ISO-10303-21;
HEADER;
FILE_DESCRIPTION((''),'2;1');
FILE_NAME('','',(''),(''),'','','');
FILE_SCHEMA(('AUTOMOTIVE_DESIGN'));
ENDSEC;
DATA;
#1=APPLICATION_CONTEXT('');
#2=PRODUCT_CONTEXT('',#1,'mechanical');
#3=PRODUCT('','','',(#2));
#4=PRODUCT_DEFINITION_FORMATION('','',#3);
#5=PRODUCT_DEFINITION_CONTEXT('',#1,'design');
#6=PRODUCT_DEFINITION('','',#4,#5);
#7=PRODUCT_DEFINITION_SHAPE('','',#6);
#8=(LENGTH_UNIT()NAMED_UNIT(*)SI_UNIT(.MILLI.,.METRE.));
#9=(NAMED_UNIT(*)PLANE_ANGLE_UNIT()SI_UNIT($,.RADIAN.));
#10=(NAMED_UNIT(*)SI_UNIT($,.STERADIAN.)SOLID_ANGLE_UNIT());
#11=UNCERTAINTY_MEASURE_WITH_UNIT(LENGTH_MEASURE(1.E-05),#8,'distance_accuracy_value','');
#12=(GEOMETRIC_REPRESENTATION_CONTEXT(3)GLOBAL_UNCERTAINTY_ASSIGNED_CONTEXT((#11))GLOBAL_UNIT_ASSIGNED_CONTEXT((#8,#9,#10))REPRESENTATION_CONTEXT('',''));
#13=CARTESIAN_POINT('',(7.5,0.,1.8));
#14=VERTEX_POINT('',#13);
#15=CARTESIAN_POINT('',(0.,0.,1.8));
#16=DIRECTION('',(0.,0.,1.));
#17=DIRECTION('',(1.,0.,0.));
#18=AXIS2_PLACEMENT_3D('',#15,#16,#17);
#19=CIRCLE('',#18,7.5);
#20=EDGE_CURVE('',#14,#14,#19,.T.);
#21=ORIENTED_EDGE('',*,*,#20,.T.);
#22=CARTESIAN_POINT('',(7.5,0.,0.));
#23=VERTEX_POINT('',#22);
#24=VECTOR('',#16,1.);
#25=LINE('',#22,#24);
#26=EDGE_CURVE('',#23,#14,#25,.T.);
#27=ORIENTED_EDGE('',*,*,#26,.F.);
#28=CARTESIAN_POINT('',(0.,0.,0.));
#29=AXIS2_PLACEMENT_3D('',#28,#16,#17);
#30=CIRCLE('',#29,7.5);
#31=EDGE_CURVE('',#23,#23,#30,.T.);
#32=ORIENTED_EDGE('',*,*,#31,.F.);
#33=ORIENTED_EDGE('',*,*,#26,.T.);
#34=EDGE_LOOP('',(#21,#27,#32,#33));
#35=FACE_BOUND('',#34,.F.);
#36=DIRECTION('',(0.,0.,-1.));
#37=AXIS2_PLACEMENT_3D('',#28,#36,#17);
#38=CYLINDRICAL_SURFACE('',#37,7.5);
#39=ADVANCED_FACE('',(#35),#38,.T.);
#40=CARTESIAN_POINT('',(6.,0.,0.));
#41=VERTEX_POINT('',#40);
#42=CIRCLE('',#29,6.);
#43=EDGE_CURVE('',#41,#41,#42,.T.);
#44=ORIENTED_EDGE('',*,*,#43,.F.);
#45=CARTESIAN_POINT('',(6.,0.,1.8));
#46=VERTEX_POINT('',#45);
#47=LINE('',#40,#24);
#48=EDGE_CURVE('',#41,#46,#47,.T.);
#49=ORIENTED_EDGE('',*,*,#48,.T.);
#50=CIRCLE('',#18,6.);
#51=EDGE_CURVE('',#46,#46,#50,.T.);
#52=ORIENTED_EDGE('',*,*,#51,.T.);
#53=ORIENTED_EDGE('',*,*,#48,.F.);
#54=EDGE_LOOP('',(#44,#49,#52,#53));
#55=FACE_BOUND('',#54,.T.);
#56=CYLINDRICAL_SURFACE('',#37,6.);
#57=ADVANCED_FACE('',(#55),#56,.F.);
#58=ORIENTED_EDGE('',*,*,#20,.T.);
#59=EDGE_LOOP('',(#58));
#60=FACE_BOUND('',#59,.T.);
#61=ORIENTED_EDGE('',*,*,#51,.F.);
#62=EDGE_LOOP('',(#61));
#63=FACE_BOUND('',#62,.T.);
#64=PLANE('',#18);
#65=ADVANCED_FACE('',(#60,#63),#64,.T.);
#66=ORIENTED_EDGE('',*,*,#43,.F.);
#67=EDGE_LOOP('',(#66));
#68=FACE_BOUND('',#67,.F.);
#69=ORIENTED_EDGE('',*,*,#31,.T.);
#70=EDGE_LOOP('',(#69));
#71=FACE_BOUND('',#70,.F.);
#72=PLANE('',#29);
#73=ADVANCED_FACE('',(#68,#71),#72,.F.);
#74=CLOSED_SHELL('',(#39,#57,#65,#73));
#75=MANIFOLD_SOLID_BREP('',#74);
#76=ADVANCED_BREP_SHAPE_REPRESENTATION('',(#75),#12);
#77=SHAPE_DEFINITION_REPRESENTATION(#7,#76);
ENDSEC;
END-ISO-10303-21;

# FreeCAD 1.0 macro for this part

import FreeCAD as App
import Part
import Sketcher

V = App.Vector

doc = App.newDocument("Part")
body = doc.addObject("PartDesign::Body", "Body")

sketch1 = doc.addObject("Sketcher::SketchObject", "Sketch")
body.addObject(sketch1)
sketch1.AttachmentSupport = (doc.XY_Plane, [""])
sketch1.MapMode = "FlatFace"
sketch1.addGeometry([
    Part.Circle(V(0, 0, 0), V(0, 0, 1), 8),
    Part.Circle(V(0, 0, 0), V(0, 0, 1), 6),
], False)
sketch1.addConstraint([
    Sketcher.Constraint("Coincident", 0, 3, -1, 1),
    Sketcher.Constraint("Coincident", 1, 3, -1, 1),
    Sketcher.Constraint("Diameter", 0, 15.0),
    Sketcher.Constraint("Diameter", 1, 12.0),
])
pad1 = doc.addObject("PartDesign::Pad", "Pad")
body.addObject(pad1)
pad1.Profile = sketch1
pad1.Length = 1.8

doc.recompute()
